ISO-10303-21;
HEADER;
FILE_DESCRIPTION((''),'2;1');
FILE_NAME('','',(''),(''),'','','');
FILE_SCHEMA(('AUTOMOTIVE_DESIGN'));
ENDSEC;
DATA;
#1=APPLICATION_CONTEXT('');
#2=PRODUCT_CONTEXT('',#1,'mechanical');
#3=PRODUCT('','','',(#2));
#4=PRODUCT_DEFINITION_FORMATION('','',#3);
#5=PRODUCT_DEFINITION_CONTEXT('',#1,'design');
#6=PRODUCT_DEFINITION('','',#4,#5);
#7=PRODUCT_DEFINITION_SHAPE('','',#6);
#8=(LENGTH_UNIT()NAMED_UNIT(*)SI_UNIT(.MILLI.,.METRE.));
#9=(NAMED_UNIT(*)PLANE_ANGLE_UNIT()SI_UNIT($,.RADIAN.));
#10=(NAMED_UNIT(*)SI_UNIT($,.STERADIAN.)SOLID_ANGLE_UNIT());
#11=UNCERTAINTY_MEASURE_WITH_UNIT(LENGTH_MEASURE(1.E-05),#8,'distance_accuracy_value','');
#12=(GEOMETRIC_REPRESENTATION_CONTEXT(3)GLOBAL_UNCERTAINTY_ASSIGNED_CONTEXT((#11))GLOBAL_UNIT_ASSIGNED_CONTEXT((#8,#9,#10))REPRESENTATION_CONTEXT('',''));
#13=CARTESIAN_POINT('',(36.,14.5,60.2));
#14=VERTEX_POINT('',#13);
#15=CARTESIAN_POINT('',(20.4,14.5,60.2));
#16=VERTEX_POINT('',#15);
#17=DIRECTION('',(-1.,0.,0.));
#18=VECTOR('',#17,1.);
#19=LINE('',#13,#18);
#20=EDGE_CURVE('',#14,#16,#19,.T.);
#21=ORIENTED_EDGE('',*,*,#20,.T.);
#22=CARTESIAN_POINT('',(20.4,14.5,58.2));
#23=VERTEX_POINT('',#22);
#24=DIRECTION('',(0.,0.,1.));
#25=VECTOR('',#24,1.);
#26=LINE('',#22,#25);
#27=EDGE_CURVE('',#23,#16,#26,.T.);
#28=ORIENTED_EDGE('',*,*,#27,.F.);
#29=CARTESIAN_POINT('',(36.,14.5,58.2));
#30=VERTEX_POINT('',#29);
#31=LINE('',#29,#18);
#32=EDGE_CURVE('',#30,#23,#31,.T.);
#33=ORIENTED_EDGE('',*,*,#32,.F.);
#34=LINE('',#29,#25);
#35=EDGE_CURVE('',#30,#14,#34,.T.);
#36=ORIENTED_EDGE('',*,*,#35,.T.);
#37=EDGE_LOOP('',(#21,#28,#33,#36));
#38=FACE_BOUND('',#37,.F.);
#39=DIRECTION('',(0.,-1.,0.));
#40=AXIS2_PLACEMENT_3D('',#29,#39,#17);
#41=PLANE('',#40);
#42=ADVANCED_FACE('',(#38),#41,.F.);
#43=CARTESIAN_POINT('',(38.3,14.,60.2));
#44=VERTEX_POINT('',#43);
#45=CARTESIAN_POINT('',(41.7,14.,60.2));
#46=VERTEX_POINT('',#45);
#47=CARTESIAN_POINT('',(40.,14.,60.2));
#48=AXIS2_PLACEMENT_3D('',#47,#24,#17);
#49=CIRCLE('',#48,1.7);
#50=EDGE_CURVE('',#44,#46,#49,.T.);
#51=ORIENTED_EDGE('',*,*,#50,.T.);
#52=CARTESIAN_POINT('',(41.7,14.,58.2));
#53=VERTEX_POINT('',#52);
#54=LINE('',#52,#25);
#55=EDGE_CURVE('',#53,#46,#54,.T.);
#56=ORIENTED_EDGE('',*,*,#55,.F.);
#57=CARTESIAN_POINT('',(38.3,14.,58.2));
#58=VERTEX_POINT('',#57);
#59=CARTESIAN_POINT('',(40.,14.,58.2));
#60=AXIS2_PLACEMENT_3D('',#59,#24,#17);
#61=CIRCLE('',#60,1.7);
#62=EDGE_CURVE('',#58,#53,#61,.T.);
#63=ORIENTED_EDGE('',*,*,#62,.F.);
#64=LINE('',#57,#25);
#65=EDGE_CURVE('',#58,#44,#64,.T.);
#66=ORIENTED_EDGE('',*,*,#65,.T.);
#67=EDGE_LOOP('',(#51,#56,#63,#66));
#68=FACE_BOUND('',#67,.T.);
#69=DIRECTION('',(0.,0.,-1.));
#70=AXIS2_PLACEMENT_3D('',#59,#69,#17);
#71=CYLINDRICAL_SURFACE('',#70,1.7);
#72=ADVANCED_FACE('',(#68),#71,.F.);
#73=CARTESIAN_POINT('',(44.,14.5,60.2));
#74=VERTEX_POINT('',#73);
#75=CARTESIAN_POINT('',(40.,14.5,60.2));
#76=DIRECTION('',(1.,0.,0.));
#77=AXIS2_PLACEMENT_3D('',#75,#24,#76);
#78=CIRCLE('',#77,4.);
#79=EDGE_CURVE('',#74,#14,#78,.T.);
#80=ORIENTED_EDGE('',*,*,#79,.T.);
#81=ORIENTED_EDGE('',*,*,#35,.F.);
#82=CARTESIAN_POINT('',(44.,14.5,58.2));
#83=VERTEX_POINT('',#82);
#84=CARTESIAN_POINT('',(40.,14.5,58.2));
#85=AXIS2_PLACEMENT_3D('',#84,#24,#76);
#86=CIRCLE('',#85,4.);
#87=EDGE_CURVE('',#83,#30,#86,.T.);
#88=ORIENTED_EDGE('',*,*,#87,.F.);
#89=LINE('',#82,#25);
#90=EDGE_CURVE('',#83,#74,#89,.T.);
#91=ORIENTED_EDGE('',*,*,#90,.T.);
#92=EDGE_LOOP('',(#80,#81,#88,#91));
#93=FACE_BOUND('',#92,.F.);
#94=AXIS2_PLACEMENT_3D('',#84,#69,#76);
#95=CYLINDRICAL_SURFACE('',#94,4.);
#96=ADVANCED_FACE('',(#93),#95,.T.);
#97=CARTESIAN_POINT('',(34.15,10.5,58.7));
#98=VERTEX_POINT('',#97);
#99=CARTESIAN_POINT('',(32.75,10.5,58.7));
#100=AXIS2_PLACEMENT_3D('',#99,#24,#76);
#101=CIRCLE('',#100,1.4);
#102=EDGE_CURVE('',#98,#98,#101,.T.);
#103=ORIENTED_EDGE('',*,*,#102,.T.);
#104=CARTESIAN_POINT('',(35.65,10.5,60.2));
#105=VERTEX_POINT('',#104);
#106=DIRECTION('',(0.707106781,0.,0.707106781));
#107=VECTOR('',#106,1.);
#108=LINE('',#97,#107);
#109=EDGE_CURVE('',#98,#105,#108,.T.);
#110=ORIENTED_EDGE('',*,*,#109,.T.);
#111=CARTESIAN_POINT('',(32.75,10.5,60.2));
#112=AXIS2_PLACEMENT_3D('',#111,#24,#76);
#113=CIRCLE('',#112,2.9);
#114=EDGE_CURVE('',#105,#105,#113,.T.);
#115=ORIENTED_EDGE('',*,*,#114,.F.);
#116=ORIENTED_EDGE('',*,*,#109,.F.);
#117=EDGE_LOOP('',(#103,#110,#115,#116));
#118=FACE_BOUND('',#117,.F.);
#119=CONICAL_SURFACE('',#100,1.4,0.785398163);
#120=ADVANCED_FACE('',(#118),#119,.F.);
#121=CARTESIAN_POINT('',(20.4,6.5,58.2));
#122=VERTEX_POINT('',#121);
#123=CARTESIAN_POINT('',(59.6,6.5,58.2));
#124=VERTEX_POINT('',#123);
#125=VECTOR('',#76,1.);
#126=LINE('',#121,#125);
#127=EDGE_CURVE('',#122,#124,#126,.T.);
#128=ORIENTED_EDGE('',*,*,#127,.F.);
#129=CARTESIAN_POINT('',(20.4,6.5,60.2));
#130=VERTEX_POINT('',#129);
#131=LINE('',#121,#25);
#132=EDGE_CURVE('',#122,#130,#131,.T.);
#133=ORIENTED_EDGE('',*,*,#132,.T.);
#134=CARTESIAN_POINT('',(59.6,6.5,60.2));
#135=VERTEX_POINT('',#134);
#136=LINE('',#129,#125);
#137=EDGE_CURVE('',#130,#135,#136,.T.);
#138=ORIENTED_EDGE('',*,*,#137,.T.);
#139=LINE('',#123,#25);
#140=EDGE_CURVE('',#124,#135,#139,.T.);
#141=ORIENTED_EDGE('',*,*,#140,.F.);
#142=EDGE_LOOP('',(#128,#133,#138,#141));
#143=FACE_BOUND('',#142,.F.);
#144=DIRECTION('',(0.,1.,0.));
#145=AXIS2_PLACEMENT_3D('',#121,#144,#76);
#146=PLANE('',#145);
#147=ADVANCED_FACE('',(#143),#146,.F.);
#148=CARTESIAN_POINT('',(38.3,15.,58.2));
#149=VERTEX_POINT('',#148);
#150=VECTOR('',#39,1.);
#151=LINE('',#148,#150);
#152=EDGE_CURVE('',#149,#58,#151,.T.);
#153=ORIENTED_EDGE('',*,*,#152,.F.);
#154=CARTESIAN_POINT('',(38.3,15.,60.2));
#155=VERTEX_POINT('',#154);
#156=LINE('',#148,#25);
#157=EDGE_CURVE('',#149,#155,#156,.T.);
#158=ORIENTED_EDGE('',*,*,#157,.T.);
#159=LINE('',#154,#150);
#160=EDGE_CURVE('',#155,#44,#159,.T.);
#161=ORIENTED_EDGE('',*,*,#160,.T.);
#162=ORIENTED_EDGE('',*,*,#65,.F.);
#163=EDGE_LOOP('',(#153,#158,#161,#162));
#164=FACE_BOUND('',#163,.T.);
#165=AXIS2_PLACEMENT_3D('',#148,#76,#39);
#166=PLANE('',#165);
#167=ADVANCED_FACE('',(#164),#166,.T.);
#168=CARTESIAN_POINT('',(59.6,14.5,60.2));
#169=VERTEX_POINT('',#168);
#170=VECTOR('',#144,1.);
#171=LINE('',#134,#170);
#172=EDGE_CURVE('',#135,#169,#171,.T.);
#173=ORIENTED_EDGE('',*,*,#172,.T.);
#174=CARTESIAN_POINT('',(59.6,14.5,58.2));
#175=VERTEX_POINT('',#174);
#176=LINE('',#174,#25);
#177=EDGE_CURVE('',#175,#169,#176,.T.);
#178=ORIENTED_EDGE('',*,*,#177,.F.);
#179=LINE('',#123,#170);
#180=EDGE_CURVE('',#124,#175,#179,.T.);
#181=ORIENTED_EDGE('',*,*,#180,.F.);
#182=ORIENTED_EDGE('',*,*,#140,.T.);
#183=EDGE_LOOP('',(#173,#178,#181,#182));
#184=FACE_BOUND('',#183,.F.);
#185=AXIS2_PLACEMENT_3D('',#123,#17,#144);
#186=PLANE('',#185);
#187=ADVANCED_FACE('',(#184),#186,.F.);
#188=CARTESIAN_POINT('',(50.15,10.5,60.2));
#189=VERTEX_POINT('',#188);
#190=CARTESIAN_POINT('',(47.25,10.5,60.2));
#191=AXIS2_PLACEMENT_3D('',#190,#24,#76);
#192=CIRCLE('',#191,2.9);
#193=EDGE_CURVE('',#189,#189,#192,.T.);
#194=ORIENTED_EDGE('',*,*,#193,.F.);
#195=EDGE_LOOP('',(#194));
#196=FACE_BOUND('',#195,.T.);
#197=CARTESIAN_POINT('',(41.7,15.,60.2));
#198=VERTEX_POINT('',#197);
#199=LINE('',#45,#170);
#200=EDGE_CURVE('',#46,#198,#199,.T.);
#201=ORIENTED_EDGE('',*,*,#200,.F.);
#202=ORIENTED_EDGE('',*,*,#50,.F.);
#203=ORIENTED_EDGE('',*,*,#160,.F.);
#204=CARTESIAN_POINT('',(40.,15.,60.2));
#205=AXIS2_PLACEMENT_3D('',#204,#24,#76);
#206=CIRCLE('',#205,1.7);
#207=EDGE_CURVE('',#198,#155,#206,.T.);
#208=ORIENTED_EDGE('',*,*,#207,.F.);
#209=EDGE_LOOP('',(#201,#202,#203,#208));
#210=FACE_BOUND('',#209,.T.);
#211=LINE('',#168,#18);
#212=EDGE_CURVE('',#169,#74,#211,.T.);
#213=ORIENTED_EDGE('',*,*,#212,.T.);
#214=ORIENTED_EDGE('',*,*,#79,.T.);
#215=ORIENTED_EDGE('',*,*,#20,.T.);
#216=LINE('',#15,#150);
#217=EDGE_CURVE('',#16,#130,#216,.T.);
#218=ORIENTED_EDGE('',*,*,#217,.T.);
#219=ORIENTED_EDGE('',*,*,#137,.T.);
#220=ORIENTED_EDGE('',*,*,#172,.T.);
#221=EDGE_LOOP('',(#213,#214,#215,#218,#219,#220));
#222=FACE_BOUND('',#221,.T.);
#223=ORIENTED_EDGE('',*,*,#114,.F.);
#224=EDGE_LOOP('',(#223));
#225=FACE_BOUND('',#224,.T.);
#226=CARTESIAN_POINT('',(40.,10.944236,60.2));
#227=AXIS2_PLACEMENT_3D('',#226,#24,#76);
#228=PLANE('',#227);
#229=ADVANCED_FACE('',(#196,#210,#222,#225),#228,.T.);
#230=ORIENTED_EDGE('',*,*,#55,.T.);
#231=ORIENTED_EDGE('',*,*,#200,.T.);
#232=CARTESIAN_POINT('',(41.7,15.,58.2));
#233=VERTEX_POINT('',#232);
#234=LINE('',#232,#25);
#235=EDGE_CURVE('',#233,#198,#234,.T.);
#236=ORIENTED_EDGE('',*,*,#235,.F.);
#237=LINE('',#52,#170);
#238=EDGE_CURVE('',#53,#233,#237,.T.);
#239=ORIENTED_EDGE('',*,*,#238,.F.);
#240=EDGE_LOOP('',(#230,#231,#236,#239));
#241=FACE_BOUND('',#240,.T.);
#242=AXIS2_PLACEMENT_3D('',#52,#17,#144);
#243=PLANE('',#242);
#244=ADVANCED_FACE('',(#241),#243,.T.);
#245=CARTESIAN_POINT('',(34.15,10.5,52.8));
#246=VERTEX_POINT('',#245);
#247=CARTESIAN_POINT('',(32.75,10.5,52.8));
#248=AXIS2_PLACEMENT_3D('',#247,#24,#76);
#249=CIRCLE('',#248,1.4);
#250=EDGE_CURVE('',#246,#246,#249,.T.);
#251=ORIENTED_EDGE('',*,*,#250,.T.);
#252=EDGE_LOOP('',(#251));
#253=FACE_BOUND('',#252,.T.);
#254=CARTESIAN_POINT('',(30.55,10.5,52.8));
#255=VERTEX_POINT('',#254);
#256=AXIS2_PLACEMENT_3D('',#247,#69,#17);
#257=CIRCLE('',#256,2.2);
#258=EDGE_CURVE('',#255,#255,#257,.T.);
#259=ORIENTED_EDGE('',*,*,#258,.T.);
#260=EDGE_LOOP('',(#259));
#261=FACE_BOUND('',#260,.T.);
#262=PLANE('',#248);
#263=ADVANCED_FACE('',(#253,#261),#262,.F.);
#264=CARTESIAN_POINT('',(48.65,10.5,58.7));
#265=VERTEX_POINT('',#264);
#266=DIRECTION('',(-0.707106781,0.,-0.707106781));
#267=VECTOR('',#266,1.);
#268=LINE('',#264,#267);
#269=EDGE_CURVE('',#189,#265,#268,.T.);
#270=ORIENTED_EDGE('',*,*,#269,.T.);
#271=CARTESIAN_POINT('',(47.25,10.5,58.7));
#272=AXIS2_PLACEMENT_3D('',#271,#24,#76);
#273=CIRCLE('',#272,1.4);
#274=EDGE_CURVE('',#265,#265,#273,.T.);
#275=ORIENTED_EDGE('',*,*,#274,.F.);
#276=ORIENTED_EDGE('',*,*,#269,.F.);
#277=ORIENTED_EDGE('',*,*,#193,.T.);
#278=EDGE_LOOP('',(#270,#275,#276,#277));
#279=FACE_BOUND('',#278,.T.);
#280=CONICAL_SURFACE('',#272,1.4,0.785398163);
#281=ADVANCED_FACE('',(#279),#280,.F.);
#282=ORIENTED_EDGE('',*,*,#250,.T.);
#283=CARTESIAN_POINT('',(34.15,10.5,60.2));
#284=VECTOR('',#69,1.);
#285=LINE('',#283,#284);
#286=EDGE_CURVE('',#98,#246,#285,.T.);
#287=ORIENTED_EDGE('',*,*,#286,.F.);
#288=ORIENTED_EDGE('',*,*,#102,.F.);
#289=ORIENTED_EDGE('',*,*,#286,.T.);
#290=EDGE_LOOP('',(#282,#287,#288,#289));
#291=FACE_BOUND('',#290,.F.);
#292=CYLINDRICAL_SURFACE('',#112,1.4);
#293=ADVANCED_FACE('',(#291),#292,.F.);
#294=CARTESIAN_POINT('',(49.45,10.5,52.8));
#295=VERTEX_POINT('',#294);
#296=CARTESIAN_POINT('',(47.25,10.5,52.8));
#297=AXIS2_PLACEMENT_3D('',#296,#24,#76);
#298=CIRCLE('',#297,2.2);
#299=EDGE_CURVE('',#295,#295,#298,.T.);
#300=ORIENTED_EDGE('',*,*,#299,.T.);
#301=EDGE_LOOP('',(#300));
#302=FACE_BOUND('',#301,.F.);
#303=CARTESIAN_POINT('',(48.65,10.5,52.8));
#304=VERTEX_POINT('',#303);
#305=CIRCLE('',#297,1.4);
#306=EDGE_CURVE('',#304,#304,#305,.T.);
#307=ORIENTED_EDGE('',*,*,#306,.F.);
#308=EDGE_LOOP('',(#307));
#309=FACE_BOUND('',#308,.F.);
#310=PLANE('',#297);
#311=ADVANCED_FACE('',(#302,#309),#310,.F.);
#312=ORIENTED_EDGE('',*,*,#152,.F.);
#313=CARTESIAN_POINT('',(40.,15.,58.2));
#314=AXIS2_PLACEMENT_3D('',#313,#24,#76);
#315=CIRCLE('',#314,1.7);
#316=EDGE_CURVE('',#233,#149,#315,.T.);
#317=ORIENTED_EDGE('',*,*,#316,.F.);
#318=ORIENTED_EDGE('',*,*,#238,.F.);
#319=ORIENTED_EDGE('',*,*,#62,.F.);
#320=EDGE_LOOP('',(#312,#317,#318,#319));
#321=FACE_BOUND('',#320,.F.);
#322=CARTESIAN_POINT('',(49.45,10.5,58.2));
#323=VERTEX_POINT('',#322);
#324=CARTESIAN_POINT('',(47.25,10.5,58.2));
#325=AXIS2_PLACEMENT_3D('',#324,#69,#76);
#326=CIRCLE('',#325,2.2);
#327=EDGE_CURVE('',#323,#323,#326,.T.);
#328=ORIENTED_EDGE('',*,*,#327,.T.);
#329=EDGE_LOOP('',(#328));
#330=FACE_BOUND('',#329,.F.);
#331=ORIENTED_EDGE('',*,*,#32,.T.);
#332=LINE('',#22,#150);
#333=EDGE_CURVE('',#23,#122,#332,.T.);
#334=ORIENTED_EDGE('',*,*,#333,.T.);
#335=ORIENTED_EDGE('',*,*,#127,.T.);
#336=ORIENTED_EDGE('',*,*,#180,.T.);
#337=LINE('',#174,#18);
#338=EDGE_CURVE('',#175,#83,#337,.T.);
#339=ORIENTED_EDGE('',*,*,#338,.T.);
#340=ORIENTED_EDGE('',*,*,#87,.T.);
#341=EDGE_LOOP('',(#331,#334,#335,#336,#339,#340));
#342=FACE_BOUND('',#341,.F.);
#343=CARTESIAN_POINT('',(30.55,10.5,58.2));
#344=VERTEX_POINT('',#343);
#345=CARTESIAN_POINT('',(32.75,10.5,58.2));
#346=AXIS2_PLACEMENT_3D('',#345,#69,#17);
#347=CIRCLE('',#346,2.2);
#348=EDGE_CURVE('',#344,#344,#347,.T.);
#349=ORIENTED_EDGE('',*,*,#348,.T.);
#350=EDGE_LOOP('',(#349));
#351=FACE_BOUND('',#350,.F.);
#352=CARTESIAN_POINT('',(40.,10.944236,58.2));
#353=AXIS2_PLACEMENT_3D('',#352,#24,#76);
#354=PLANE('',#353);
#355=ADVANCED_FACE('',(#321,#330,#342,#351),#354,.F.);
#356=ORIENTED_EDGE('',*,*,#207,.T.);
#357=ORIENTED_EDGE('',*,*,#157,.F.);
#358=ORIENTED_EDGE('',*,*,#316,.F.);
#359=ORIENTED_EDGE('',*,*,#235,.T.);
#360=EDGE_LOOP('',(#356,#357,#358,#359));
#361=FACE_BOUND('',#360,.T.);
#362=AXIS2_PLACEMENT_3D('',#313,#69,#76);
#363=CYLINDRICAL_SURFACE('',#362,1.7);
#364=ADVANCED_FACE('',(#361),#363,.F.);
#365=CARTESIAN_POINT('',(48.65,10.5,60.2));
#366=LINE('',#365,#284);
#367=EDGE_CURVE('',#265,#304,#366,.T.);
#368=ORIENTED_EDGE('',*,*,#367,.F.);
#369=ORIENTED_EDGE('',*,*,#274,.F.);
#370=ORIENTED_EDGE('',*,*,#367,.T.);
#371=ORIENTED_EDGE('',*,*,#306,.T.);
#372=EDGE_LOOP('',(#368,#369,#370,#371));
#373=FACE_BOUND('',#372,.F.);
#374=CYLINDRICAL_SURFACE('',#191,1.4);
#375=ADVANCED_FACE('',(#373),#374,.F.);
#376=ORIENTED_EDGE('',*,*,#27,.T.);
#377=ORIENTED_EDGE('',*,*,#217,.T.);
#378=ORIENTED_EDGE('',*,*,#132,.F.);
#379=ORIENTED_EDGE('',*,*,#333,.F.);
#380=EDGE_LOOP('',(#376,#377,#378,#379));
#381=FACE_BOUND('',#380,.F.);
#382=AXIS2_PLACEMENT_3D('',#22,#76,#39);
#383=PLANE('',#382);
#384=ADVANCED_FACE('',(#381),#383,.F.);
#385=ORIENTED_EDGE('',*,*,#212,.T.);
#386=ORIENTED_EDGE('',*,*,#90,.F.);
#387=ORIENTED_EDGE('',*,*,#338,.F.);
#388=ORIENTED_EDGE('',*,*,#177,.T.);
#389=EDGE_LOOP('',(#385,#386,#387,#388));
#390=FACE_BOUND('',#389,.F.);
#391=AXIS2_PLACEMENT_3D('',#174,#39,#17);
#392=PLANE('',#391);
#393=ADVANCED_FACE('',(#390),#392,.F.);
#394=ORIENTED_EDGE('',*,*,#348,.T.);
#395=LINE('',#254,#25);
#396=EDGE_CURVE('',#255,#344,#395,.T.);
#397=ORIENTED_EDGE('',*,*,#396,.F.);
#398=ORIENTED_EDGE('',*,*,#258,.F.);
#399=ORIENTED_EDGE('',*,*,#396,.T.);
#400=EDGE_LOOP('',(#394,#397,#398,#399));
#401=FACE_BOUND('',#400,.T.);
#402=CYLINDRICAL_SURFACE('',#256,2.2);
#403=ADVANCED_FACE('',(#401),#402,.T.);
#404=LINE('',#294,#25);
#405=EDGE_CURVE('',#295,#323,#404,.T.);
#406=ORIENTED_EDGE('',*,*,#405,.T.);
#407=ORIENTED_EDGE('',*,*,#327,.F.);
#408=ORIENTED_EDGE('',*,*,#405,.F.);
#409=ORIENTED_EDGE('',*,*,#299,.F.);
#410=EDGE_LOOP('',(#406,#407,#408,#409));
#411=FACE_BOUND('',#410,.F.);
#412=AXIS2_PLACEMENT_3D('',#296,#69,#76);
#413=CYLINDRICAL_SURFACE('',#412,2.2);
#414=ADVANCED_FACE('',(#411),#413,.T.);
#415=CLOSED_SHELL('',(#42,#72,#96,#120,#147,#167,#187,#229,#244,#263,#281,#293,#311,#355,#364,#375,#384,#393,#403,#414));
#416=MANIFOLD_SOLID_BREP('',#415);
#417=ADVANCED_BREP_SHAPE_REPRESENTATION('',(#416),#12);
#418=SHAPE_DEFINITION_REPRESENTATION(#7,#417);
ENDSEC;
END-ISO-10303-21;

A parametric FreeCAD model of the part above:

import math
import FreeCAD as App
import Part
import Sketcher
from FreeCAD import Vector
Q = App.Units.Quantity


def edges_at(feature, points):
    """Names of the edges that pass closest to the given points."""
    edges = feature.Shape.Edges
    near = lambda p: min(range(len(edges)), key=lambda i: edges[i].distToShape(Part.Vertex(*p))[0])
    return sorted({f"Edge{near(p) + 1}" for p in points})

doc = App.newDocument("Part")
body = doc.addObject("PartDesign::Body", "Body")

# Sketch on XZ plane
sketch1 = doc.addObject("Sketcher::SketchObject", "Sketch")
body.addObject(sketch1)
sketch1.AttachmentSupport = (doc.XZ_Plane, [""])
sketch1.MapMode = "FlatFace"
sketch1.addGeometry([
    Part.LineSegment(Vector(-4, -2.5, 0), Vector(-19.6, -2.5, 0)),  # 0
    Part.LineSegment(Vector(-19.6, -2.5, 0), Vector(-19.6, -10.5, 0)),  # 1
    Part.LineSegment(Vector(-19.6, -10.5, 0), Vector(19.6, -10.5, 0)),  # 2
    Part.LineSegment(Vector(19.6, -10.5, 0), Vector(19.6, -2.5, 0)),  # 3
    Part.LineSegment(Vector(19.6, -2.5, 0), Vector(4, -2.5, 0)),  # 4
    Part.ArcOfCircle(Part.Circle(Vector(0, -2.5, 0), Vector(0, 0, 1), 4), math.radians(0), math.radians(180)),  # 5
    Part.ArcOfCircle(Part.Circle(Vector(0, -2, 0), Vector(0, 0, 1), 1.7), math.radians(0), math.radians(180)),  # 6
    Part.LineSegment(Vector(1.7, -2, 0), Vector(1.7, -3, 0)),  # 7
    Part.ArcOfCircle(Part.Circle(Vector(0, -3, 0), Vector(0, 0, 1), 1.7), math.radians(180), math.radians(360)),  # 8
    Part.LineSegment(Vector(-1.7, -3, 0), Vector(-1.7, -2, 0)),  # 9
], False)
sketch1.addConstraint([
    Sketcher.Constraint("Coincident", 0, 2, 1, 1),
    Sketcher.Constraint("Coincident", 1, 2, 2, 1),
    Sketcher.Constraint("Coincident", 2, 2, 3, 1),
    Sketcher.Constraint("Coincident", 3, 2, 4, 1),
    Sketcher.Constraint("Coincident", 4, 2, 5, 1),
    Sketcher.Constraint("Coincident", 5, 2, 0, 1),
    Sketcher.Constraint("Tangent", 6, 1, 7, 1),
    Sketcher.Constraint("Tangent", 7, 2, 8, 2),
    Sketcher.Constraint("Tangent", 8, 1, 9, 1),
    Sketcher.Constraint("Tangent", 9, 2, 6, 2),
    Sketcher.Constraint("Horizontal", 0),
    Sketcher.Constraint("Vertical", 1),
    Sketcher.Constraint("Horizontal", 2),
    Sketcher.Constraint("Vertical", 3),
    Sketcher.Constraint("Horizontal", 4),
    Sketcher.Constraint("Vertical", 7),
    Sketcher.Constraint("Vertical", 9),
    Sketcher.Constraint("Symmetric", 0, 2, 3, 2, -2),
    Sketcher.Constraint("PointOnObject", 5, 3, -2),
    Sketcher.Constraint("PointOnObject", 6, 3, -2),
    Sketcher.Constraint("Horizontal", 5, 3, 0, 2),
    Sketcher.Constraint("Radius", 5, Q("4 mm")),
    Sketcher.Constraint("Radius", 6, Q("1.7 mm")),
    Sketcher.Constraint("DistanceY", 1, 2, 1, 1, Q("8 mm")),
    Sketcher.Constraint("DistanceY", 7, 2, 7, 1, Q("1 mm")),
    Sketcher.Constraint("DistanceX", 0, 2, 0, 1, Q("15.6 mm")),
    Sketcher.Constraint("DistanceY", 6, 3, -1, 1, Q("2 mm")),
    Sketcher.Constraint("DistanceY", 5, 3, -1, 1, Q("2.5 mm")),
])
pad1 = doc.addObject("PartDesign::Pad", "Pad")
body.addObject(pad1)
pad1.Profile = sketch1
pad1.Length = 2

# Sketch on XZ plane
sketch2 = doc.addObject("Sketcher::SketchObject", "Sketch001")
body.addObject(sketch2)
sketch2.AttachmentSupport = (doc.XZ_Plane, [""])
sketch2.MapMode = "FlatFace"
sketch2.AttachmentOffset = App.Placement(Vector(0, 0, -5.4), App.Rotation())
sketch2.addGeometry(Part.Circle(Vector(7.2, -6.5, 0), Vector(0, 0, 1), 2.2), False)
sketch2.addConstraint([
    Sketcher.Constraint("Diameter", 0, Q("4.4 mm")),
    Sketcher.Constraint("DistanceY", 0, 3, -1, 1, Q("6.5 mm")),
    Sketcher.Constraint("DistanceX", -1, 1, 0, 3, Q("7.25 mm")),
])
pad2 = doc.addObject("PartDesign::Pad", "Pad001")
body.addObject(pad2)
pad2.Profile = sketch2
pad2.Length = 7
doc.recompute()

mirrored = doc.addObject("PartDesign::Mirrored", "Mirrored")
body.addObject(mirrored)
mirrored.Originals = [pad2]
mirrored.MirrorPlane = (doc.YZ_Plane, [""])
body.Tip = mirrored

# Sketch on XZ plane
sketch3 = doc.addObject("Sketcher::SketchObject", "Sketch002")
body.addObject(sketch3)
sketch3.AttachmentSupport = (doc.XZ_Plane, [""])
sketch3.MapMode = "FlatFace"
sketch3.AttachmentOffset = App.Placement(Vector(0, 0, 2), App.Rotation())
sketch3.addGeometry([
    Part.Circle(Vector(-7.2, -6.5, 0), Vector(0, 0, 1), 1.4),
    Part.Circle(Vector(7.2, -6.5, 0), Vector(0, 0, 1), 1.4),
], False)
sketch3.addConstraint([
    Sketcher.Constraint("Equal", 0, 1),
    Sketcher.Constraint("Symmetric", 0, 3, 1, 3, -2),
    Sketcher.Constraint("Diameter", 0, Q("2.8 mm")),
    Sketcher.Constraint("DistanceY", 0, 3, -1, 1, Q("6.5 mm")),
    Sketcher.Constraint("DistanceX", 0, 3, 1, 3, Q("14.5 mm")),
])
pocket1 = doc.addObject("PartDesign::Pocket", "Pocket")
body.addObject(pocket1)
pocket1.Profile = sketch3
pocket1.Type = "ThroughAll"
doc.recompute()

chamfer = doc.addObject("PartDesign::Chamfer", "Chamfer")
body.addObject(chamfer)
chamfer.Base = (pocket1, edges_at(pocket1, [(-8.65, -2, -6.5), (5.85, -2, -6.5)]))
chamfer.Size = 1.5
body2 = doc.addObject("PartDesign::Body", "Body001")
doc.recompute()

body.Placement = App.Placement(Vector(0, 4.2, 0), App.Rotation(Vector(0, 0, 1), 180))
boolean = doc.addObject("PartDesign::Boolean", "Boolean")
body2.addObject(boolean)
boolean.Type = "Fuse"
boolean.addObjects([body])
body3 = doc.addObject("PartDesign::Body", "Body002")
doc.recompute()

body2.Placement = App.Placement(Vector(0, -4.2, 0), App.Rotation(Vector(0, 0, 1), 0))
boolean2 = doc.addObject("PartDesign::Boolean", "Boolean001")
body3.addObject(boolean2)
boolean2.Type = "Fuse"
boolean2.addObjects([body2])
body4 = doc.addObject("PartDesign::Body", "Body003")
doc.recompute()

body3.Placement = App.Placement(Vector(0, 0, 0), App.Rotation(Vector(1, 0, 0), 90))
boolean3 = doc.addObject("PartDesign::Boolean", "Boolean002")
body4.addObject(boolean3)
boolean3.Type = "Fuse"
boolean3.addObjects([body3])
body5 = doc.addObject("PartDesign::Body", "Body004")
doc.recompute()

body4.Placement = App.Placement(Vector(40, 17, 58.2), App.Rotation(Vector(0, 0, 1), 180))
boolean4 = doc.addObject("PartDesign::Boolean", "Boolean003")
body5.addObject(boolean4)
boolean4.Type = "Fuse"
boolean4.addObjects([body4])

doc.recompute()
